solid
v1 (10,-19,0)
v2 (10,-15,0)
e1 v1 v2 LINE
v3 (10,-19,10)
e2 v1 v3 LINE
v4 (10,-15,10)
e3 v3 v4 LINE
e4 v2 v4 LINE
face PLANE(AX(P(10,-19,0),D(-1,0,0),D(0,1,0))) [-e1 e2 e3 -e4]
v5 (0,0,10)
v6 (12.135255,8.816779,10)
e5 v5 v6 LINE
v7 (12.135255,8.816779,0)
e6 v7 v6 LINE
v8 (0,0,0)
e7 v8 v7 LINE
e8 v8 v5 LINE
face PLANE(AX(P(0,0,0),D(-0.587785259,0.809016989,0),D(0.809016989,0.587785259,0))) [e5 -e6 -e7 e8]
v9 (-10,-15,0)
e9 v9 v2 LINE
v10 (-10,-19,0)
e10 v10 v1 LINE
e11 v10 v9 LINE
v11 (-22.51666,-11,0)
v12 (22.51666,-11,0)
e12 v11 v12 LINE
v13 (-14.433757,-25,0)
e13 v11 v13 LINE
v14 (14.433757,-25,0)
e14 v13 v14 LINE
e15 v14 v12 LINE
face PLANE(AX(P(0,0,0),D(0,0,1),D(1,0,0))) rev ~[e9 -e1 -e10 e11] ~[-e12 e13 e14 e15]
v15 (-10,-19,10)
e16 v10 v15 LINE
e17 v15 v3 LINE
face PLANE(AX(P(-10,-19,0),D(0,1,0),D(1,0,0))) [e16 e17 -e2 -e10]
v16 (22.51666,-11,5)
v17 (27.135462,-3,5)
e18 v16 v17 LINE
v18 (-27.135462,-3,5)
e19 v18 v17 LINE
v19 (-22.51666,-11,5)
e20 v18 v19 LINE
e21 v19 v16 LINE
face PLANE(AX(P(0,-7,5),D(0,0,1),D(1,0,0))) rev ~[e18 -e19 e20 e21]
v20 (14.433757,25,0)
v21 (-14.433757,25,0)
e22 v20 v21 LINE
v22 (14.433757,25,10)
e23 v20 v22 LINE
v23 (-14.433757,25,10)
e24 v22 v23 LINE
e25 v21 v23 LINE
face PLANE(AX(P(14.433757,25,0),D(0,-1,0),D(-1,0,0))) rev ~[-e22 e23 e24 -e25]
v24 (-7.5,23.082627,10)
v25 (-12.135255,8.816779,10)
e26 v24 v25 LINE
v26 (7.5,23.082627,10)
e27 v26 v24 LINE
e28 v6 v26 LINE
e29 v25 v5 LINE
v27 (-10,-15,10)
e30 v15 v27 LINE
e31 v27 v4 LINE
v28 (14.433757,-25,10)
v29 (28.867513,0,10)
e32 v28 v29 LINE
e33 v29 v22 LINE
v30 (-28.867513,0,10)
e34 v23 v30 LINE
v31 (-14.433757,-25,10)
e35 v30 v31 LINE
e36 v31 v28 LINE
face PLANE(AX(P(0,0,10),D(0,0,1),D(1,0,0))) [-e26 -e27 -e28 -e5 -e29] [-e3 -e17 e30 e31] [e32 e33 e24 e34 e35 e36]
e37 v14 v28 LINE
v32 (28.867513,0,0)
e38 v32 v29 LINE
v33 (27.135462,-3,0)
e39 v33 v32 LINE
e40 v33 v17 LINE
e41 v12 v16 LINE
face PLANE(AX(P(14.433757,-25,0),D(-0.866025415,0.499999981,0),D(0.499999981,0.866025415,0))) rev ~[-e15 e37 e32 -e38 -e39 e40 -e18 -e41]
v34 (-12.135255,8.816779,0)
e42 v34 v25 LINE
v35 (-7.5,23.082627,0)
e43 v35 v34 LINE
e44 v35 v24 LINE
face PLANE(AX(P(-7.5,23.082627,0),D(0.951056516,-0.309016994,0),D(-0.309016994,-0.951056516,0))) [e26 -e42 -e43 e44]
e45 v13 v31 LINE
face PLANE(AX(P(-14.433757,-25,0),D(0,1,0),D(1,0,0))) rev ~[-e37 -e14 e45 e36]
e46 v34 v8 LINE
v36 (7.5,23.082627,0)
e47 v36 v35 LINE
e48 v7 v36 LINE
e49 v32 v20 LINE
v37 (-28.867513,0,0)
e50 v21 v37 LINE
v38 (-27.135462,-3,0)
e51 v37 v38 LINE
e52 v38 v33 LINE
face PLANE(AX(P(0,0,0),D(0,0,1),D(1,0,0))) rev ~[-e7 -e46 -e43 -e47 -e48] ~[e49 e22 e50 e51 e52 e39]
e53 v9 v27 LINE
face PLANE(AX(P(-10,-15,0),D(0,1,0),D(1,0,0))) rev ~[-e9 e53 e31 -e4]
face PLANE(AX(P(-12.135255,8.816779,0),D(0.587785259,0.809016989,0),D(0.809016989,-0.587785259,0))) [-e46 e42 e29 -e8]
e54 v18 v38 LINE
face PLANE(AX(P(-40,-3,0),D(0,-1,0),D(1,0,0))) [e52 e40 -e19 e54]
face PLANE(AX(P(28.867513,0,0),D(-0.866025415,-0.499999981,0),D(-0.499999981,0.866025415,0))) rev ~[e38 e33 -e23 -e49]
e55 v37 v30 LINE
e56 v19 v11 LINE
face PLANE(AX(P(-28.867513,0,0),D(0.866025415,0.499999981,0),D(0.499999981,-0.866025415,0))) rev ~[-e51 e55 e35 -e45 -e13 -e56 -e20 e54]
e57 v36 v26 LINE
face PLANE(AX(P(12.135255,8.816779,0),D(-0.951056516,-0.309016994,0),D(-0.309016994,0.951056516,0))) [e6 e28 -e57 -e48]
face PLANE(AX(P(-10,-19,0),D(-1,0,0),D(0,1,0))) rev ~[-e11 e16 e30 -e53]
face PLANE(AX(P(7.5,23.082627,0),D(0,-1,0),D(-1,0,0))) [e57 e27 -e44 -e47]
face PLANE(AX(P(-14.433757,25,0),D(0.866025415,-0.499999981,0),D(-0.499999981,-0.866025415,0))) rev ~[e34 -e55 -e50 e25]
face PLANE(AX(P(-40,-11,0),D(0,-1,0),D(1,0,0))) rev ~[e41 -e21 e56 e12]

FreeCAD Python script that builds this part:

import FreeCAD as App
import Part
import Sketcher

V = App.Vector
Q = App.Units.Quantity

doc = App.newDocument("Part")
params = doc.addObject("Spreadsheet::Sheet", "Params")
for row, (alias, value) in enumerate([
    ("sketch1_width", "80 mm"),
    ("sketch1_height", "8 mm"),
    ("pad1_length", "5 mm"),
    ("pad1_length2", "1 mm"),
    ("sketch2_width", "20 mm"),
    ("sketch2_width2", "15 mm"),
    ("sketch2_height", "4 mm"),
    ("pad2_length", "10 mm"),
], start=1):
    params.set(f"A{row}", alias)
    params.set(f"B{row}", "=" + value)
    params.setAlias(f"B{row}", alias)

body = doc.addObject("PartDesign::Body", "Body")

# Sketch on XY plane
sketch1 = doc.addObject("Sketcher::SketchObject", "Sketch")
body.addObject(sketch1)
sketch1.AttachmentSupport = (doc.XY_Plane, [""])
sketch1.MapMode = "FlatFace"
sketch1.addGeometry(Part.LineSegment(V(-40, -3, 0), V(-40, -11, 0)), False)
sketch1.addGeometry(Part.LineSegment(V(-40, -11, 0), V(40, -11, 0)), False)
sketch1.addGeometry(Part.LineSegment(V(40, -11, 0), V(40, -3, 0)), False)
sketch1.addGeometry(Part.LineSegment(V(40, -3, 0), V(-40, -3, 0)), False)
sketch1.addConstraint(Sketcher.Constraint("Coincident", 0, 2, 1, 1))
sketch1.addConstraint(Sketcher.Constraint("Coincident", 1, 2, 2, 1))
sketch1.addConstraint(Sketcher.Constraint("Coincident", 2, 2, 3, 1))
sketch1.addConstraint(Sketcher.Constraint("Coincident", 3, 2, 0, 1))
sketch1.addConstraint(Sketcher.Constraint("Vertical", 0))
sketch1.addConstraint(Sketcher.Constraint("Horizontal", 1))
sketch1.addConstraint(Sketcher.Constraint("Vertical", 2))
sketch1.addConstraint(Sketcher.Constraint("Horizontal", 3))
sketch1.addConstraint(Sketcher.Constraint("DistanceX", 1, 1, 1, 2, 80.0))
sketch1.addConstraint(Sketcher.Constraint("DistanceY", 0, 2, 0, 1, 8.0))
sketch1.addConstraint(Sketcher.Constraint("DistanceX", 0, 2, -1, 1, 40.0))
sketch1.addConstraint(Sketcher.Constraint("DistanceY", 0, 2, -1, 1, 11.0))
sketch1.setExpression("Constraints[8]", "Params.sketch1_width")
sketch1.setExpression("Constraints[9]", "Params.sketch1_height")
pad1 = doc.addObject("PartDesign::Pad", "Pad")
body.addObject(pad1)
pad1.Profile = sketch1
pad1.Type = "TwoLengths"
pad1.setExpression("Length", "Params.pad1_length")
pad1.setExpression("Length2", "Params.pad1_length2")
body2 = doc.addObject("PartDesign::Body", "Body001")

# Sketch on XY plane
sketch2 = doc.addObject("Sketcher::SketchObject", "Sketch001")
body2.addObject(sketch2)
sketch2.AttachmentSupport = (doc.getObject("XY_Plane001"), [""])
sketch2.MapMode = "FlatFace"
sketch2.addGeometry(Part.LineSegment(V(28.9, 0, 0), V(14.4, 25, 0)), False)
sketch2.addGeometry(Part.LineSegment(V(14.4, 25, 0), V(-14.4, 25, 0)), False)
sketch2.addGeometry(Part.LineSegment(V(-14.4, 25, 0), V(-28.9, 0, 0)), False)
sketch2.addGeometry(Part.LineSegment(V(-28.9, 0, 0), V(-14.4, -25, 0)), False)
sketch2.addGeometry(Part.LineSegment(V(-14.4, -25, 0), V(14.4, -25, 0)), False)
sketch2.addGeometry(Part.LineSegment(V(14.4, -25, 0), V(28.9, 0, 0)), False)
sketch2.addGeometry(Part.LineSegment(V(10, -19, 0), V(-10, -19, 0)), False)
sketch2.addGeometry(Part.LineSegment(V(-10, -19, 0), V(-10, -15, 0)), False)
sketch2.addGeometry(Part.LineSegment(V(-10, -15, 0), V(10, -15, 0)), False)
sketch2.addGeometry(Part.LineSegment(V(10, -15, 0), V(10, -19, 0)), False)
sketch2.addGeometry(Part.LineSegment(V(-7.5, 23.1, 0), V(7.5, 23.1, 0)), False)
sketch2.addGeometry(Part.LineSegment(V(7.5, 23.1, 0), V(12.1, 8.8, 0)), False)
sketch2.addGeometry(Part.LineSegment(V(12.1, 8.8, 0), V(0, 0, 0)), False)
sketch2.addGeometry(Part.LineSegment(V(0, 0, 0), V(-12.1, 8.8, 0)), False)
sketch2.addGeometry(Part.LineSegment(V(-12.1, 8.8, 0), V(-7.5, 23.1, 0)), False)
sketch2.addConstraint(Sketcher.Constraint("Coincident", 0, 2, 1, 1))
sketch2.addConstraint(Sketcher.Constraint("Coincident", 1, 2, 2, 1))
sketch2.addConstraint(Sketcher.Constraint("Coincident", 2, 2, 3, 1))
sketch2.addConstraint(Sketcher.Constraint("Coincident", 3, 2, 4, 1))
sketch2.addConstraint(Sketcher.Constraint("Coincident", 4, 2, 5, 1))
sketch2.addConstraint(Sketcher.Constraint("Coincident", 5, 2, 0, 1))
sketch2.addConstraint(Sketcher.Constraint("Coincident", 6, 2, 7, 1))
sketch2.addConstraint(Sketcher.Constraint("Coincident", 7, 2, 8, 1))
sketch2.addConstraint(Sketcher.Constraint("Coincident", 8, 2, 9, 1))
sketch2.addConstraint(Sketcher.Constraint("Coincident", 9, 2, 6, 1))
sketch2.addConstraint(Sketcher.Constraint("Coincident", 10, 2, 11, 1))
sketch2.addConstraint(Sketcher.Constraint("Coincident", 11, 2, 12, 1))
sketch2.addConstraint(Sketcher.Constraint("Coincident", 12, 2, 13, 1))
sketch2.addConstraint(Sketcher.Constraint("Coincident", 13, 2, 14, 1))
sketch2.addConstraint(Sketcher.Constraint("Coincident", 14, 2, 10, 1))
sketch2.addConstraint(Sketcher.Constraint("Horizontal", 1))
sketch2.addConstraint(Sketcher.Constraint("Horizontal", 4))
sketch2.addConstraint(Sketcher.Constraint("Horizontal", 6))
sketch2.addConstraint(Sketcher.Constraint("Vertical", 7))
sketch2.addConstraint(Sketcher.Constraint("Horizontal", 8))
sketch2.addConstraint(Sketcher.Constraint("Vertical", 9))
sketch2.addConstraint(Sketcher.Constraint("Horizontal", 10))
sketch2.addConstraint(Sketcher.Constraint("Coincident", 12, 2, -1, 1))
sketch2.addConstraint(Sketcher.Constraint("Symmetric", 0, 2, 3, 2, -1, 1))
sketch2.addConstraint(Sketcher.Constraint("Symmetric", 2, 2, 5, 2, -1, 1))
sketch2.addConstraint(Sketcher.Constraint("Symmetric", 11, 2, 13, 2, -2))
sketch2.addConstraint(Sketcher.Constraint("PointOnObject", 2, 2, -1))
sketch2.addConstraint(Sketcher.Constraint("Parallel", 2, 5))
sketch2.addConstraint(Sketcher.Constraint("Vertical", 1, 2, 3, 2))
sketch2.addConstraint(Sketcher.Constraint("Equal", 11, 12))
sketch2.addConstraint(Sketcher.Constraint("Equal", 13, 14))
sketch2.addConstraint(Sketcher.Constraint("DistanceX", 6, 2, 6, 1, 20.0))
sketch2.addConstraint(Sketcher.Constraint("DistanceX", 10, 1, 10, 2, 15.0))
sketch2.addConstraint(Sketcher.Constraint("DistanceY", 7, 1, 7, 2, 4.0))
sketch2.addConstraint(Sketcher.Constraint("Angle", 0, Q("119.999999 deg")))
sketch2.addConstraint(Sketcher.Constraint("Angle", 11, Q("-72 deg")))
sketch2.addConstraint(Sketcher.Constraint("Angle", 12, Q("-144 deg")))
sketch2.addConstraint(Sketcher.Constraint("DistanceY", -1, 1, 0, 2, 25.0))
sketch2.addConstraint(Sketcher.Constraint("DistanceX", 6, 2, -1, 1, 10.0))
sketch2.addConstraint(Sketcher.Constraint("DistanceY", 6, 2, -1, 1, 19.0))
sketch2.addConstraint(Sketcher.Constraint("DistanceX", 11, 2, 0, 2, 2.298502))
sketch2.setExpression("Constraints[31]", "Params.sketch2_width")
sketch2.setExpression("Constraints[32]", "Params.sketch2_width2")
sketch2.setExpression("Constraints[33]", "Params.sketch2_height")
pad2 = doc.addObject("PartDesign::Pad", "Pad001")
body2.addObject(pad2)
pad2.Profile = sketch2
pad2.setExpression("Length", "Params.pad2_length")
doc.recompute()

boolean = doc.addObject("PartDesign::Boolean", "Boolean")
body2.addObject(boolean)
boolean.Type = "Cut"
boolean.addObjects([body])

doc.recompute()
